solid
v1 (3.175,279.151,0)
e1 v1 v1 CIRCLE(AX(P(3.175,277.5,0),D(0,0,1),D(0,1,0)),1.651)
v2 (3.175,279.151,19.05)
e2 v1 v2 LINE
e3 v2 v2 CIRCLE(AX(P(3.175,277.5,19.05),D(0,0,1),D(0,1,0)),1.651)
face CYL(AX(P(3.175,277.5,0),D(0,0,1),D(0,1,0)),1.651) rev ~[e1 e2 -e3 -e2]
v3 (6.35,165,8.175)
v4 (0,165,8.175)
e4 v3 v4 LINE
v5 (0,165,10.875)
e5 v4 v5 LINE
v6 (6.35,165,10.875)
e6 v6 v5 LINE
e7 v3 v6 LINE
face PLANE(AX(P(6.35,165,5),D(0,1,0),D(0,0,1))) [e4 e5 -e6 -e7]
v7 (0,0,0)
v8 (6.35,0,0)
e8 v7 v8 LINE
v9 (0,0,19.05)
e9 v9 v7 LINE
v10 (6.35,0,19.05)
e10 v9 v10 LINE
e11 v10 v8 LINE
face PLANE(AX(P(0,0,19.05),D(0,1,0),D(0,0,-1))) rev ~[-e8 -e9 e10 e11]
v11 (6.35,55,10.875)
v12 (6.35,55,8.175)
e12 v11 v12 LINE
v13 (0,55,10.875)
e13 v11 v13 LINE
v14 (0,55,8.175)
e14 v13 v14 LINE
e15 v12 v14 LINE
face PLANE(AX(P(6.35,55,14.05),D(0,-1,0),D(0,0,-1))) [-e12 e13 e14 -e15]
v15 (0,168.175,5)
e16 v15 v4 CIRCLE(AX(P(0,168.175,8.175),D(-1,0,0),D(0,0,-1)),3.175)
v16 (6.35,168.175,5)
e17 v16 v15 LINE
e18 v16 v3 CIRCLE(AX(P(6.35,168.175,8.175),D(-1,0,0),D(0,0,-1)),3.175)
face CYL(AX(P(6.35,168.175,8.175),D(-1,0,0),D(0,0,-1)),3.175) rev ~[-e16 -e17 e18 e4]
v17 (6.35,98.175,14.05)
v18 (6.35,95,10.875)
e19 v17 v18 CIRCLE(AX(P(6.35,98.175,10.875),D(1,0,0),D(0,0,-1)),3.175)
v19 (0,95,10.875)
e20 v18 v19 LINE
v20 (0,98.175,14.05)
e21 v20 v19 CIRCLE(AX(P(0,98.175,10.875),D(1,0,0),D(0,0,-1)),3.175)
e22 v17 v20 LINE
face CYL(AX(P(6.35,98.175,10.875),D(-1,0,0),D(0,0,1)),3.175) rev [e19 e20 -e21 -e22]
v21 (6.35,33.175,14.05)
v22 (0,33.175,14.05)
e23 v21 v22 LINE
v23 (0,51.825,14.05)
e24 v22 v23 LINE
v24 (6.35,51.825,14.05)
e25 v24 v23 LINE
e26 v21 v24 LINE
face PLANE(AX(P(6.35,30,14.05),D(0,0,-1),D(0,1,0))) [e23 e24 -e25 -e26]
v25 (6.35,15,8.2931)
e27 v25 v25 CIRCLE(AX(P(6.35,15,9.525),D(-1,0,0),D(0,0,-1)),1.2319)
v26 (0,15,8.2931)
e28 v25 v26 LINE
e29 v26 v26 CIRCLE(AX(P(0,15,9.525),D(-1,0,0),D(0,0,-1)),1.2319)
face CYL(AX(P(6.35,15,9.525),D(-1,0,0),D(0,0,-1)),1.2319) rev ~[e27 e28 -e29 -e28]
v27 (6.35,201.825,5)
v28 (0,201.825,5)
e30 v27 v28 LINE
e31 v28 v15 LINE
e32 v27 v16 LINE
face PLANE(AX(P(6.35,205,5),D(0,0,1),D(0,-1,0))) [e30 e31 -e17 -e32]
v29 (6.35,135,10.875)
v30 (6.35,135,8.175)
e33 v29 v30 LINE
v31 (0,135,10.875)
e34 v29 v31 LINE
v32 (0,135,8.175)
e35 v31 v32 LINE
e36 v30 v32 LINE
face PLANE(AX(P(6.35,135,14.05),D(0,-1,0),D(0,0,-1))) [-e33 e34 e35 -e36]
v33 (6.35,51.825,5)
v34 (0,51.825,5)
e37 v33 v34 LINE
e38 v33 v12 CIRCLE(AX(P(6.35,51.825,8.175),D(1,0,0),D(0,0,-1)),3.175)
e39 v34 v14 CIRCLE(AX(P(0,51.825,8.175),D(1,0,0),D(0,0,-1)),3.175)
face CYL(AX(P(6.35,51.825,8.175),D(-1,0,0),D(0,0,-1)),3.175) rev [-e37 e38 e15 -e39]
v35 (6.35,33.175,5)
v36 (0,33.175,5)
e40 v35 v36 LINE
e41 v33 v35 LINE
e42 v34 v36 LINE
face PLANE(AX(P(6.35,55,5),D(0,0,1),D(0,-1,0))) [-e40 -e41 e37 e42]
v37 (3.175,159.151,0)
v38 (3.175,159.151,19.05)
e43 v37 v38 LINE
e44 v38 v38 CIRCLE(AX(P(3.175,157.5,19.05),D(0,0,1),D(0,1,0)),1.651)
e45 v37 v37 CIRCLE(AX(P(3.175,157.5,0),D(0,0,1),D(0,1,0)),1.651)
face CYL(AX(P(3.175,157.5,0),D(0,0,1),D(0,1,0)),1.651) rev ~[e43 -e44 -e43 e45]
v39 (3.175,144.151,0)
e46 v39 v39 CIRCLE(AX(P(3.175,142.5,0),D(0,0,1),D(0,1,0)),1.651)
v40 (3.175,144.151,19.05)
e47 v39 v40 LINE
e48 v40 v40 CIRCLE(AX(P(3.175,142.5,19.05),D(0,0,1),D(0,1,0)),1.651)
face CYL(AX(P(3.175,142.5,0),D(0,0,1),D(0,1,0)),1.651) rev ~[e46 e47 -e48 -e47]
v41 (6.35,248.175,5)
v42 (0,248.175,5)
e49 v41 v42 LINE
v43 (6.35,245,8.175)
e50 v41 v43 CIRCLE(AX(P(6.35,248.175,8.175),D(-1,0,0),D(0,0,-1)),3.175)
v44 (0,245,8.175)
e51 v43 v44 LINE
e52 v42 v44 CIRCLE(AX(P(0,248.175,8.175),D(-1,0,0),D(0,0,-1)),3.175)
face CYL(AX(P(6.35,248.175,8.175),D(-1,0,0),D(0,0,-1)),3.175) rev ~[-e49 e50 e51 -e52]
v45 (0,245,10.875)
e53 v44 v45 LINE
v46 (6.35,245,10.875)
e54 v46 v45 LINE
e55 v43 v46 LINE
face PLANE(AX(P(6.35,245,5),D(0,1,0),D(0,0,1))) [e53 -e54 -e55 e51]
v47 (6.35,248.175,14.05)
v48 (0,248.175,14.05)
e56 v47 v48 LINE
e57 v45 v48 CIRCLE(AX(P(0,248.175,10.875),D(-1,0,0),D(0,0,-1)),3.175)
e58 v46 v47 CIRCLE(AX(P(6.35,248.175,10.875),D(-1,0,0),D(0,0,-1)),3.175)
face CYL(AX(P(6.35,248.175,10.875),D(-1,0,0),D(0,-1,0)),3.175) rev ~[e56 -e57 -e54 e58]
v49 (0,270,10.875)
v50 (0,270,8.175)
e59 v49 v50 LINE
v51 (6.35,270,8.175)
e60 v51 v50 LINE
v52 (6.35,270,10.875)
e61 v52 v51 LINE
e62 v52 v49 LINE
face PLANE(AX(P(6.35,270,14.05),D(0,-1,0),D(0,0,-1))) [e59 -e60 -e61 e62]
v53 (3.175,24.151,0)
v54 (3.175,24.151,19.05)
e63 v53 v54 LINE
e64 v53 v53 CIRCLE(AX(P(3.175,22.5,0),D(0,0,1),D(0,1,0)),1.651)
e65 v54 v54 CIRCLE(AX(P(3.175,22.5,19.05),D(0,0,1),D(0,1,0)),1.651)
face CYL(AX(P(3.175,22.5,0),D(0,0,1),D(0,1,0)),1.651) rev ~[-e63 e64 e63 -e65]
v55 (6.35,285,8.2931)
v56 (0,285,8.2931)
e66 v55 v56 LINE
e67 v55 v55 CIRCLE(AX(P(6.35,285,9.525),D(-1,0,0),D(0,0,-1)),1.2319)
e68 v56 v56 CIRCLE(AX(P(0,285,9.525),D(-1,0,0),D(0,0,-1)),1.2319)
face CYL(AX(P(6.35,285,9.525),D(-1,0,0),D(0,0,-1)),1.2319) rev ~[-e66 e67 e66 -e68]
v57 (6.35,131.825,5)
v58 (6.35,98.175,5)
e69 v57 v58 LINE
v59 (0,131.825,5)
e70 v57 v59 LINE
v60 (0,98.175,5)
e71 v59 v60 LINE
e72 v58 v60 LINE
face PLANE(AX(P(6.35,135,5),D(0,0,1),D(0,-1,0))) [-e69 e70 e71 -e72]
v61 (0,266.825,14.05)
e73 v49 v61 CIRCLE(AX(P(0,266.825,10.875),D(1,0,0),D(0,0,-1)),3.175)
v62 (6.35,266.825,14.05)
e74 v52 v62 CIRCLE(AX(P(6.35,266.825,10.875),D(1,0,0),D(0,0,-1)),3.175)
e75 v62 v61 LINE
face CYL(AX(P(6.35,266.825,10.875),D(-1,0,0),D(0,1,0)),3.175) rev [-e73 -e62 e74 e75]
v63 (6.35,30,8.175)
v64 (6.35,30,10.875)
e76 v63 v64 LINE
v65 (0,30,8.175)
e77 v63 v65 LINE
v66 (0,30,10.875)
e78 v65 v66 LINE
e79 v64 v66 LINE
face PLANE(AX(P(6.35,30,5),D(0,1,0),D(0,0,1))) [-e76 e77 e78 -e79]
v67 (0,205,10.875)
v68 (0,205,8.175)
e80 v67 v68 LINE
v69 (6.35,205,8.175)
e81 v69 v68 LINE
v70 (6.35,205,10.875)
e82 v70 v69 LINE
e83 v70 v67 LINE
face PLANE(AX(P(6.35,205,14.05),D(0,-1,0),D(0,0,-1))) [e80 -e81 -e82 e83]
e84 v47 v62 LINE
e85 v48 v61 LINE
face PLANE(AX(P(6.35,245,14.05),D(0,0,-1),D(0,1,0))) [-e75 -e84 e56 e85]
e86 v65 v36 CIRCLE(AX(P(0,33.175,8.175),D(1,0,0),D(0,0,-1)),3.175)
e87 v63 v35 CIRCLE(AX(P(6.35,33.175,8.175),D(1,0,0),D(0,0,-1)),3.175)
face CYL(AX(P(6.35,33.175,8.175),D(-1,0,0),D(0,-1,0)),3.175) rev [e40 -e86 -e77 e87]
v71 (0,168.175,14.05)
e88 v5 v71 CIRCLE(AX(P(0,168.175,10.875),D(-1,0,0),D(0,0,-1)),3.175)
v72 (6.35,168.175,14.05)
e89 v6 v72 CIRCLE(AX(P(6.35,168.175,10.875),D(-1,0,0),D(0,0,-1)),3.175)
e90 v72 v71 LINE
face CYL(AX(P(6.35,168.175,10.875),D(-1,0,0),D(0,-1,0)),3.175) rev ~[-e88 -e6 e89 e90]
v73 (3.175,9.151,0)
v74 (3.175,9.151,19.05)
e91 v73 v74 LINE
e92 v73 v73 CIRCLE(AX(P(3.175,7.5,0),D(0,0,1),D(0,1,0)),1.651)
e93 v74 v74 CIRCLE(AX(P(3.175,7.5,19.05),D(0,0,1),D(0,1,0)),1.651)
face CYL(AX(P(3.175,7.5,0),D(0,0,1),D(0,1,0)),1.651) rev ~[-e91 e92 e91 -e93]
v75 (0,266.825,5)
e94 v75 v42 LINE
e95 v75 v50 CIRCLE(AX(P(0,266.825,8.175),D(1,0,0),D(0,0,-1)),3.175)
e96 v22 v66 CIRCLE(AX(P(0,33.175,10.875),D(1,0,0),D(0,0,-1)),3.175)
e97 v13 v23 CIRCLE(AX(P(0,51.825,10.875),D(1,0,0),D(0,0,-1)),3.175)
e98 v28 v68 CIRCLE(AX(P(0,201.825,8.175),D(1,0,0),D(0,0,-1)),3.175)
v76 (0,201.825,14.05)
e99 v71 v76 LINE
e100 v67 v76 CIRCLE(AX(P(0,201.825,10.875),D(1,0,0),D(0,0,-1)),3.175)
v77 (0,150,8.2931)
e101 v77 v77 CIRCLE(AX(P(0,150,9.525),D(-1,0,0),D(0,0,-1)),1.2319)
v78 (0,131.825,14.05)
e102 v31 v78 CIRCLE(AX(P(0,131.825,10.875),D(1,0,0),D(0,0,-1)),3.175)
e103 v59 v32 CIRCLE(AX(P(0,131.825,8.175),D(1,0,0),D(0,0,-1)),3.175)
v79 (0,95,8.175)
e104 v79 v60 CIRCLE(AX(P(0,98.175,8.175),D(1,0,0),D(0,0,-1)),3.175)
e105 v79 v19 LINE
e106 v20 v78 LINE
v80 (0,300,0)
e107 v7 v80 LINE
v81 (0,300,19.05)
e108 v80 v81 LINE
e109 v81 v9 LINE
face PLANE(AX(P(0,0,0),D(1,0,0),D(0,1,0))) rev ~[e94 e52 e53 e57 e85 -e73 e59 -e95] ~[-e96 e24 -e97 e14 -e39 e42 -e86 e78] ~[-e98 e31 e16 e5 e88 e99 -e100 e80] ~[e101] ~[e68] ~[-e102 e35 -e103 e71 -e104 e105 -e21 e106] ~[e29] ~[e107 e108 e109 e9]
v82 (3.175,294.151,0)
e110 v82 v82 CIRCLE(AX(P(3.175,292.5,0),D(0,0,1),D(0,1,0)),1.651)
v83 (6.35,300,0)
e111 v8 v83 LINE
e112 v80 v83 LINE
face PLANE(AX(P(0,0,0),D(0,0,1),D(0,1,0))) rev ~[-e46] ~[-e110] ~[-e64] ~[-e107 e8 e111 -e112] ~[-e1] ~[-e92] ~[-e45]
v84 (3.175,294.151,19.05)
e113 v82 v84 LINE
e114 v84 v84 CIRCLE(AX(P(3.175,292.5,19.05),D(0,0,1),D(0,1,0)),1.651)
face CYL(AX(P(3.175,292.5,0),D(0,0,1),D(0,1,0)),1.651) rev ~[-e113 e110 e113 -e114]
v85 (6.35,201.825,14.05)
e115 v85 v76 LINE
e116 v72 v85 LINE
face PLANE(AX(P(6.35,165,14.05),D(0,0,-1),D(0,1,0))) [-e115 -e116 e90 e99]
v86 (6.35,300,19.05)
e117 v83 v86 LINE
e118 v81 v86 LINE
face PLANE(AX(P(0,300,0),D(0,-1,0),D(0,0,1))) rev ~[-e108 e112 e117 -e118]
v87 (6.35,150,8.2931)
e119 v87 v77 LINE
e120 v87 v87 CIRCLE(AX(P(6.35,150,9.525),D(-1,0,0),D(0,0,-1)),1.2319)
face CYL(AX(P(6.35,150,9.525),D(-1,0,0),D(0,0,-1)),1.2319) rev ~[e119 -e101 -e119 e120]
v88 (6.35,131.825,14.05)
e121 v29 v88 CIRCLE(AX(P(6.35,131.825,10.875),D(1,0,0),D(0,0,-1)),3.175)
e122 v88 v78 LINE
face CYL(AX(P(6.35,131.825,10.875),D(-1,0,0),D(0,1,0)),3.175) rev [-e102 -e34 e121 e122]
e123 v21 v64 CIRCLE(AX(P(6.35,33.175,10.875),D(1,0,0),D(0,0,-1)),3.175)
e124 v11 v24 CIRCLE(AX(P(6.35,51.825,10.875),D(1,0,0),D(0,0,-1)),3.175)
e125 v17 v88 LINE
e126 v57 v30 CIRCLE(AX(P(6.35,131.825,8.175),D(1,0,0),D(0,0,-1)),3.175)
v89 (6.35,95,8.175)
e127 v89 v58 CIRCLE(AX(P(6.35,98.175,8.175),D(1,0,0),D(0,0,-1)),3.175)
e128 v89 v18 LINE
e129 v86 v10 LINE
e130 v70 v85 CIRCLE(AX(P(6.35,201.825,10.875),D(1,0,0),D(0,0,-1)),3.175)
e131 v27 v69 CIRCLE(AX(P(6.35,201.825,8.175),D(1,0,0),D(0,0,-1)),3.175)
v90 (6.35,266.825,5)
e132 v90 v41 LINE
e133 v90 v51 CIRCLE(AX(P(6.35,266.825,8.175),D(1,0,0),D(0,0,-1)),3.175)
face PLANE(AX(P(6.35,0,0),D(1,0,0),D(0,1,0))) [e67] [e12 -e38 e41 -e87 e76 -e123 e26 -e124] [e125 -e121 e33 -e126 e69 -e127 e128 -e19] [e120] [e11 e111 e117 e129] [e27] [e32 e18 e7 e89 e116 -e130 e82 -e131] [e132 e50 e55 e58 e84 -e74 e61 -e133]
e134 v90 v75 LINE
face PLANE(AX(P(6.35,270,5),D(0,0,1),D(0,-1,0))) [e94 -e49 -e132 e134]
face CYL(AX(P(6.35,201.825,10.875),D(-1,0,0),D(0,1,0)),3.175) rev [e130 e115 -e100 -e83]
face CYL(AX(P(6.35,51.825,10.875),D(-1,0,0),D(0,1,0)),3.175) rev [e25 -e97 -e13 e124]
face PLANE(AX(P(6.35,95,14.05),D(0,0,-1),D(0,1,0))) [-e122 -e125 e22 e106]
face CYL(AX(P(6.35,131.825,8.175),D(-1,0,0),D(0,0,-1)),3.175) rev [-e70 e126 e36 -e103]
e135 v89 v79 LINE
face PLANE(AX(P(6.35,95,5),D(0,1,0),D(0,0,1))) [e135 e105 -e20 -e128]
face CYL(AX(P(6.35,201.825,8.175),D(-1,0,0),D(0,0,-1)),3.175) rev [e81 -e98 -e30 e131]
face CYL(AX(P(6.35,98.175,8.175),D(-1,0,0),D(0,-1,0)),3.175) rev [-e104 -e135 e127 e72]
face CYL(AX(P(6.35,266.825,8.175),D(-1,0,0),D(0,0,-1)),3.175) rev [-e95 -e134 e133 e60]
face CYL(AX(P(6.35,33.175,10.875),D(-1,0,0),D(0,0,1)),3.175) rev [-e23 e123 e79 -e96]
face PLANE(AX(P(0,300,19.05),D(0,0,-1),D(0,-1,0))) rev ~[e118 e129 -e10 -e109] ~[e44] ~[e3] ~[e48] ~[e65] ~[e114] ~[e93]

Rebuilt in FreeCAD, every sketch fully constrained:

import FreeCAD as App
import Part
import Sketcher
Q = App.Units.Quantity


def edges_at(feature, points):
    """Names of the edges that pass closest to the given points."""
    edges = feature.Shape.Edges
    near = lambda p: min(range(len(edges)), key=lambda i: edges[i].distToShape(Part.Vertex(*p))[0])
    return sorted({f"Edge{near(p) + 1}" for p in points})

doc = App.newDocument("Part")
body = doc.addObject("PartDesign::Body", "Body")

# Sketch on YZ plane
sketch1 = doc.addObject("Sketcher::SketchObject", "Sketch")
body.addObject(sketch1)
sketch1.AttachmentSupport = (doc.YZ_Plane, [""])
sketch1.MapMode = "FlatFace"
sketch1.addGeometry([
    Part.LineSegment(App.Vector(0, 19.05, 0), App.Vector(0, 0, 0)),
    Part.LineSegment(App.Vector(0, 0, 0), App.Vector(300, 0, 0)),
    Part.LineSegment(App.Vector(300, 0, 0), App.Vector(300, 19.05, 0)),
    Part.LineSegment(App.Vector(300, 19.05, 0), App.Vector(0, 19.05, 0)),
], False)
sketch1.addConstraint([
    Sketcher.Constraint("Coincident", 0, 2, 1, 1),
    Sketcher.Constraint("Coincident", 1, 2, 2, 1),
    Sketcher.Constraint("Coincident", 2, 2, 3, 1),
    Sketcher.Constraint("Coincident", 3, 2, 0, 1),
    Sketcher.Constraint("Vertical", 0),
    Sketcher.Constraint("Horizontal", 1),
    Sketcher.Constraint("Vertical", 2),
    Sketcher.Constraint("Horizontal", 3),
    Sketcher.Constraint("Coincident", 0, 2, -1, 1),
    Sketcher.Constraint("DistanceY", 0, 2, 0, 1, Q("0.75 in")),
    Sketcher.Constraint("DistanceX", 1, 1, 1, 2, Q("300 mm")),
])
pad1 = doc.addObject("PartDesign::Pad", "Pad")
body.addObject(pad1)
pad1.Profile = sketch1
pad1.Length = Q("0.25 in")

# Sketch on YZ plane
sketch2 = doc.addObject("Sketcher::SketchObject", "Sketch001")
body.addObject(sketch2)
sketch2.AttachmentSupport = (doc.YZ_Plane, [""])
sketch2.MapMode = "FlatFace"
sketch2.AttachmentOffset = App.Placement(App.Vector(0, 0, 0.25 * 25.4), App.Rotation())
sketch2.addGeometry([
    Part.Circle(App.Vector(285, 9.525, 0), App.Vector(0, 0, 1), 1.2319),
    Part.Circle(App.Vector(150, 9.525, 0), App.Vector(0, 0, 1), 1.2319),
    Part.Circle(App.Vector(15, 9.525, 0), App.Vector(0, 0, 1), 1.2319),
], False)
sketch2.addConstraint([
    Sketcher.Constraint("Equal", 0, 1),
    Sketcher.Constraint("Equal", 1, 2),
    Sketcher.Constraint("Horizontal", 0, 3, 1, 3),
    Sketcher.Constraint("Horizontal", 1, 3, 2, 3),
    Sketcher.Constraint("Diameter", 0, Q("0.097 in")),
    Sketcher.Constraint("DistanceY", -1, 1, 0, 3, Q("0.375 in")),
    Sketcher.Constraint("DistanceX", -1, 1, 1, 3, Q("5.9055 in")),
    Sketcher.Constraint("DistanceX", -1, 1, 0, 3, Q("285 mm")),
    Sketcher.Constraint("DistanceX", -1, 1, 2, 3, Q("15 mm")),
])
doc.recompute()
hole = doc.addObject("PartDesign::Hole", "Hole")
body.addObject(hole)
hole.Profile = sketch2
hole.ThreadType = "None"
hole.Diameter = Q("0.097 in")
hole.DepthType = "ThroughAll"

# Sketch on YZ plane
sketch3 = doc.addObject("Sketcher::SketchObject", "Sketch002")
body.addObject(sketch3)
sketch3.AttachmentSupport = (doc.YZ_Plane, [""])
sketch3.MapMode = "FlatFace"
sketch3.AttachmentOffset = App.Placement(App.Vector(0, 0, 0.25 * 25.4), App.Rotation())
sketch3.addGeometry([
    Part.LineSegment(App.Vector(270, 5, 0), App.Vector(270, 14.05, 0)),  # 0
    Part.LineSegment(App.Vector(270, 14.05, 0), App.Vector(245, 14.05, 0)),  # 1
    Part.LineSegment(App.Vector(245, 14.05, 0), App.Vector(245, 5, 0)),  # 2
    Part.LineSegment(App.Vector(245, 5, 0), App.Vector(270, 5, 0)),  # 3
    Part.LineSegment(App.Vector(205, 5, 0), App.Vector(205, 14.05, 0)),  # 4
    Part.LineSegment(App.Vector(205, 14.05, 0), App.Vector(165, 14.05, 0)),  # 5
    Part.LineSegment(App.Vector(165, 14.05, 0), App.Vector(165, 5, 0)),  # 6
    Part.LineSegment(App.Vector(165, 5, 0), App.Vector(205, 5, 0)),  # 7
    Part.LineSegment(App.Vector(135, 5, 0), App.Vector(135, 14.05, 0)),  # 8
    Part.LineSegment(App.Vector(135, 14.05, 0), App.Vector(95, 14.05, 0)),  # 9
    Part.LineSegment(App.Vector(95, 14.05, 0), App.Vector(95, 5, 0)),  # 10
    Part.LineSegment(App.Vector(95, 5, 0), App.Vector(135, 5, 0)),  # 11
    Part.LineSegment(App.Vector(55, 5, 0), App.Vector(55, 14.05, 0)),  # 12
    Part.LineSegment(App.Vector(55, 14.05, 0), App.Vector(30, 14.05, 0)),  # 13
    Part.LineSegment(App.Vector(30, 14.05, 0), App.Vector(30, 5, 0)),  # 14
    Part.LineSegment(App.Vector(30, 5, 0), App.Vector(55, 5, 0)),  # 15
], False)
sketch3.addConstraint([
    Sketcher.Constraint("Coincident", 0, 2, 1, 1),
    Sketcher.Constraint("Coincident", 1, 2, 2, 1),
    Sketcher.Constraint("Coincident", 2, 2, 3, 1),
    Sketcher.Constraint("Coincident", 3, 2, 0, 1),
    Sketcher.Constraint("Coincident", 4, 2, 5, 1),
    Sketcher.Constraint("Coincident", 5, 2, 6, 1),
    Sketcher.Constraint("Coincident", 6, 2, 7, 1),
    Sketcher.Constraint("Coincident", 7, 2, 4, 1),
    Sketcher.Constraint("Coincident", 8, 2, 9, 1),
    Sketcher.Constraint("Coincident", 9, 2, 10, 1),
    Sketcher.Constraint("Coincident", 10, 2, 11, 1),
    Sketcher.Constraint("Coincident", 11, 2, 8, 1),
    Sketcher.Constraint("Coincident", 12, 2, 13, 1),
    Sketcher.Constraint("Coincident", 13, 2, 14, 1),
    Sketcher.Constraint("Coincident", 14, 2, 15, 1),
    Sketcher.Constraint("Coincident", 15, 2, 12, 1),
    Sketcher.Constraint("Vertical", 0),
    Sketcher.Constraint("Horizontal", 1),
    Sketcher.Constraint("Vertical", 2),
    Sketcher.Constraint("Horizontal", 3),
    Sketcher.Constraint("Vertical", 4),
    Sketcher.Constraint("Horizontal", 5),
    Sketcher.Constraint("Vertical", 6),
    Sketcher.Constraint("Horizontal", 7),
    Sketcher.Constraint("Vertical", 8),
    Sketcher.Constraint("Horizontal", 9),
    Sketcher.Constraint("Vertical", 10),
    Sketcher.Constraint("Horizontal", 11),
    Sketcher.Constraint("Vertical", 12),
    Sketcher.Constraint("Horizontal", 13),
    Sketcher.Constraint("Vertical", 14),
    Sketcher.Constraint("Horizontal", 15),
    Sketcher.Constraint("Horizontal", 1, 2, 4, 2),
    Sketcher.Constraint("Horizontal", 3, 2, 6, 2),
    Sketcher.Constraint("Horizontal", 5, 2, 8, 2),
    Sketcher.Constraint("Horizontal", 7, 2, 10, 2),
    Sketcher.Constraint("Horizontal", 9, 2, 12, 2),
    Sketcher.Constraint("Horizontal", 11, 2, 14, 2),
    Sketcher.Constraint("Equal", 7, 9),
    Sketcher.Constraint("Equal", 3, 13),
    Sketcher.Constraint("DistanceX", -1, 1, 13, 2, Q("1.1811 in")),
    Sketcher.Constraint("DistanceX", 8, 2, 5, 2, Q("1.1811 in")),
    Sketcher.Constraint("DistanceY", -1, 1, 2, 2, Q("5 mm")),
    Sketcher.Constraint("DistanceX", -1, 1, 8, 2, Q("135 mm")),
    Sketcher.Constraint("DistanceX", -1, 1, 9, 2, Q("95 mm")),
    Sketcher.Constraint("DistanceX", -1, 1, 12, 2, Q("55 mm")),
    Sketcher.Constraint("DistanceY", 0, 1, 0, 2, Q("0.3563 in")),
    Sketcher.Constraint("DistanceX", 4, 2, 1, 2, Q("1.5748 in")),
])
pocket1 = doc.addObject("PartDesign::Pocket", "Pocket")
body.addObject(pocket1)
pocket1.Profile = sketch3
pocket1.Type = "ThroughAll"
doc.recompute()

fillet = doc.addObject("PartDesign::Fillet", "Fillet")
body.addObject(fillet)
fillet.Base = (pocket1, edges_at(pocket1, [(3.175, 270, 5)]))
fillet.Radius = Q("0.125 in")
doc.recompute()

fillet2 = doc.addObject("PartDesign::Fillet", "Fillet001")
body.addObject(fillet2)
fillet2.Base = (fillet, edges_at(fillet, [(3.175, 270, 14.05)]))
fillet2.Radius = Q("0.125 in")
doc.recompute()

fillet3 = doc.addObject("PartDesign::Fillet", "Fillet002")
body.addObject(fillet3)
fillet3.Base = (fillet2, edges_at(fillet2, [(3.175, 245, 5)]))
fillet3.Radius = Q("0.125 in")
doc.recompute()

fillet4 = doc.addObject("PartDesign::Fillet", "Fillet003")
body.addObject(fillet4)
fillet4.Base = (fillet3, edges_at(fillet3, [(3.175, 245, 14.05)]))
fillet4.Radius = Q("0.125 in")
doc.recompute()

fillet5 = doc.addObject("PartDesign::Fillet", "Fillet004")
body.addObject(fillet5)
fillet5.Base = (fillet4, edges_at(fillet4, [(3.175, 205, 5)]))
fillet5.Radius = Q("0.125 in")
doc.recompute()

fillet6 = doc.addObject("PartDesign::Fillet", "Fillet005")
body.addObject(fillet6)
fillet6.Base = (fillet5, edges_at(fillet5, [(3.175, 205, 14.05)]))
fillet6.Radius = Q("0.125 in")
doc.recompute()

fillet7 = doc.addObject("PartDesign::Fillet", "Fillet006")
body.addObject(fillet7)
fillet7.Base = (fillet6, edges_at(fillet6, [(3.175, 165, 5)]))
fillet7.Radius = Q("0.125 in")
doc.recompute()

fillet8 = doc.addObject("PartDesign::Fillet", "Fillet007")
body.addObject(fillet8)
fillet8.Base = (fillet7, edges_at(fillet7, [(3.175, 165, 14.05)]))
fillet8.Radius = Q("0.125 in")
doc.recompute()

fillet9 = doc.addObject("PartDesign::Fillet", "Fillet008")
body.addObject(fillet9)
fillet9.Base = (fillet8, edges_at(fillet8, [(3.175, 95, 5)]))
fillet9.Radius = Q("0.125 in")
doc.recompute()

fillet10 = doc.addObject("PartDesign::Fillet", "Fillet009")
body.addObject(fillet10)
fillet10.Base = (fillet9, edges_at(fillet9, [(3.175, 135, 5)]))
fillet10.Radius = Q("0.125 in")
doc.recompute()

fillet11 = doc.addObject("PartDesign::Fillet", "Fillet010")
body.addObject(fillet11)
fillet11.Base = (fillet10, edges_at(fillet10, [(3.175, 135, 14.05)]))
fillet11.Radius = Q("0.125 in")
doc.recompute()

fillet12 = doc.addObject("PartDesign::Fillet", "Fillet011")
body.addObject(fillet12)
fillet12.Base = (fillet11, edges_at(fillet11, [(3.175, 95, 14.05)]))
fillet12.Radius = Q("0.125 in")
doc.recompute()

fillet13 = doc.addObject("PartDesign::Fillet", "Fillet012")
body.addObject(fillet13)
fillet13.Base = (fillet12, edges_at(fillet12, [(3.175, 55, 5)]))
fillet13.Radius = Q("0.125 in")
doc.recompute()

fillet14 = doc.addObject("PartDesign::Fillet", "Fillet013")
body.addObject(fillet14)
fillet14.Base = (fillet13, edges_at(fillet13, [(3.175, 55, 14.05)]))
fillet14.Radius = Q("0.125 in")
doc.recompute()

fillet15 = doc.addObject("PartDesign::Fillet", "Fillet014")
body.addObject(fillet15)
fillet15.Base = (fillet14, edges_at(fillet14, [(3.175, 30, 14.05)]))
fillet15.Radius = Q("0.125 in")
doc.recompute()

fillet16 = doc.addObject("PartDesign::Fillet", "Fillet015")
body.addObject(fillet16)
fillet16.Base = (fillet15, edges_at(fillet15, [(3.175, 30, 5)]))
fillet16.Radius = Q("0.125 in")

# Sketch on XY plane
sketch4 = doc.addObject("Sketcher::SketchObject", "Sketch003")
body.addObject(sketch4)
sketch4.AttachmentSupport = (doc.XY_Plane, [""])
sketch4.MapMode = "FlatFace"
sketch4.addGeometry([
    Part.Circle(App.Vector(3.175, 7.5, 0), App.Vector(0, 0, 1), 1.651),  # 0
    Part.Circle(App.Vector(3.175, 22.5, 0), App.Vector(0, 0, 1), 1.651),  # 1
    Part.Circle(App.Vector(3.175, 142.5, 0), App.Vector(0, 0, 1), 1.651),  # 2
    Part.Circle(App.Vector(3.175, 157.5, 0), App.Vector(0, 0, 1), 1.651),  # 3
    Part.Circle(App.Vector(3.175, 277.5, 0), App.Vector(0, 0, 1), 1.651),  # 4
    Part.Circle(App.Vector(3.175, 292.5, 0), App.Vector(0, 0, 1), 1.651),  # 5
], False)
sketch4.addConstraint([
    Sketcher.Constraint("Equal", 0, 1),
    Sketcher.Constraint("Equal", 1, 2),
    Sketcher.Constraint("Equal", 2, 3),
    Sketcher.Constraint("Equal", 3, 4),
    Sketcher.Constraint("Equal", 4, 5),
    Sketcher.Constraint("Vertical", 0, 3, 1, 3),
    Sketcher.Constraint("Vertical", 1, 3, 2, 3),
    Sketcher.Constraint("Vertical", 2, 3, 3, 3),
    Sketcher.Constraint("Vertical", 3, 3, 4, 3),
    Sketcher.Constraint("Vertical", 4, 3, 5, 3),
    Sketcher.Constraint("Diameter", 0, Q("0.13 in")),
    Sketcher.Constraint("DistanceX", -1, 1, 0, 3, Q("0.125 in")),
    Sketcher.Constraint("DistanceY", -1, 1, 4, 3, Q("10.9252 in")),
    Sketcher.Constraint("DistanceY", 1, 3, 2, 3, Q("4.7244 in")),
    Sketcher.Constraint("DistanceY", 0, 3, 3, 3, Q("5.9055 in")),
    Sketcher.Constraint("DistanceY", 3, 3, 4, 3, Q("4.7244 in")),
    Sketcher.Constraint("DistanceY", 2, 3, 5, 3, Q("5.9055 in")),
    Sketcher.Constraint("DistanceY", -1, 1, 1, 3, Q("22.5 mm")),
])
doc.recompute()
hole2 = doc.addObject("PartDesign::Hole", "Hole001")
body.addObject(hole2)
hole2.Profile = sketch4
hole2.ThreadType = "None"
hole2.Diameter = Q("0.13 in")
hole2.DepthType = "ThroughAll"
hole2.Reversed = True

doc.recompute()
